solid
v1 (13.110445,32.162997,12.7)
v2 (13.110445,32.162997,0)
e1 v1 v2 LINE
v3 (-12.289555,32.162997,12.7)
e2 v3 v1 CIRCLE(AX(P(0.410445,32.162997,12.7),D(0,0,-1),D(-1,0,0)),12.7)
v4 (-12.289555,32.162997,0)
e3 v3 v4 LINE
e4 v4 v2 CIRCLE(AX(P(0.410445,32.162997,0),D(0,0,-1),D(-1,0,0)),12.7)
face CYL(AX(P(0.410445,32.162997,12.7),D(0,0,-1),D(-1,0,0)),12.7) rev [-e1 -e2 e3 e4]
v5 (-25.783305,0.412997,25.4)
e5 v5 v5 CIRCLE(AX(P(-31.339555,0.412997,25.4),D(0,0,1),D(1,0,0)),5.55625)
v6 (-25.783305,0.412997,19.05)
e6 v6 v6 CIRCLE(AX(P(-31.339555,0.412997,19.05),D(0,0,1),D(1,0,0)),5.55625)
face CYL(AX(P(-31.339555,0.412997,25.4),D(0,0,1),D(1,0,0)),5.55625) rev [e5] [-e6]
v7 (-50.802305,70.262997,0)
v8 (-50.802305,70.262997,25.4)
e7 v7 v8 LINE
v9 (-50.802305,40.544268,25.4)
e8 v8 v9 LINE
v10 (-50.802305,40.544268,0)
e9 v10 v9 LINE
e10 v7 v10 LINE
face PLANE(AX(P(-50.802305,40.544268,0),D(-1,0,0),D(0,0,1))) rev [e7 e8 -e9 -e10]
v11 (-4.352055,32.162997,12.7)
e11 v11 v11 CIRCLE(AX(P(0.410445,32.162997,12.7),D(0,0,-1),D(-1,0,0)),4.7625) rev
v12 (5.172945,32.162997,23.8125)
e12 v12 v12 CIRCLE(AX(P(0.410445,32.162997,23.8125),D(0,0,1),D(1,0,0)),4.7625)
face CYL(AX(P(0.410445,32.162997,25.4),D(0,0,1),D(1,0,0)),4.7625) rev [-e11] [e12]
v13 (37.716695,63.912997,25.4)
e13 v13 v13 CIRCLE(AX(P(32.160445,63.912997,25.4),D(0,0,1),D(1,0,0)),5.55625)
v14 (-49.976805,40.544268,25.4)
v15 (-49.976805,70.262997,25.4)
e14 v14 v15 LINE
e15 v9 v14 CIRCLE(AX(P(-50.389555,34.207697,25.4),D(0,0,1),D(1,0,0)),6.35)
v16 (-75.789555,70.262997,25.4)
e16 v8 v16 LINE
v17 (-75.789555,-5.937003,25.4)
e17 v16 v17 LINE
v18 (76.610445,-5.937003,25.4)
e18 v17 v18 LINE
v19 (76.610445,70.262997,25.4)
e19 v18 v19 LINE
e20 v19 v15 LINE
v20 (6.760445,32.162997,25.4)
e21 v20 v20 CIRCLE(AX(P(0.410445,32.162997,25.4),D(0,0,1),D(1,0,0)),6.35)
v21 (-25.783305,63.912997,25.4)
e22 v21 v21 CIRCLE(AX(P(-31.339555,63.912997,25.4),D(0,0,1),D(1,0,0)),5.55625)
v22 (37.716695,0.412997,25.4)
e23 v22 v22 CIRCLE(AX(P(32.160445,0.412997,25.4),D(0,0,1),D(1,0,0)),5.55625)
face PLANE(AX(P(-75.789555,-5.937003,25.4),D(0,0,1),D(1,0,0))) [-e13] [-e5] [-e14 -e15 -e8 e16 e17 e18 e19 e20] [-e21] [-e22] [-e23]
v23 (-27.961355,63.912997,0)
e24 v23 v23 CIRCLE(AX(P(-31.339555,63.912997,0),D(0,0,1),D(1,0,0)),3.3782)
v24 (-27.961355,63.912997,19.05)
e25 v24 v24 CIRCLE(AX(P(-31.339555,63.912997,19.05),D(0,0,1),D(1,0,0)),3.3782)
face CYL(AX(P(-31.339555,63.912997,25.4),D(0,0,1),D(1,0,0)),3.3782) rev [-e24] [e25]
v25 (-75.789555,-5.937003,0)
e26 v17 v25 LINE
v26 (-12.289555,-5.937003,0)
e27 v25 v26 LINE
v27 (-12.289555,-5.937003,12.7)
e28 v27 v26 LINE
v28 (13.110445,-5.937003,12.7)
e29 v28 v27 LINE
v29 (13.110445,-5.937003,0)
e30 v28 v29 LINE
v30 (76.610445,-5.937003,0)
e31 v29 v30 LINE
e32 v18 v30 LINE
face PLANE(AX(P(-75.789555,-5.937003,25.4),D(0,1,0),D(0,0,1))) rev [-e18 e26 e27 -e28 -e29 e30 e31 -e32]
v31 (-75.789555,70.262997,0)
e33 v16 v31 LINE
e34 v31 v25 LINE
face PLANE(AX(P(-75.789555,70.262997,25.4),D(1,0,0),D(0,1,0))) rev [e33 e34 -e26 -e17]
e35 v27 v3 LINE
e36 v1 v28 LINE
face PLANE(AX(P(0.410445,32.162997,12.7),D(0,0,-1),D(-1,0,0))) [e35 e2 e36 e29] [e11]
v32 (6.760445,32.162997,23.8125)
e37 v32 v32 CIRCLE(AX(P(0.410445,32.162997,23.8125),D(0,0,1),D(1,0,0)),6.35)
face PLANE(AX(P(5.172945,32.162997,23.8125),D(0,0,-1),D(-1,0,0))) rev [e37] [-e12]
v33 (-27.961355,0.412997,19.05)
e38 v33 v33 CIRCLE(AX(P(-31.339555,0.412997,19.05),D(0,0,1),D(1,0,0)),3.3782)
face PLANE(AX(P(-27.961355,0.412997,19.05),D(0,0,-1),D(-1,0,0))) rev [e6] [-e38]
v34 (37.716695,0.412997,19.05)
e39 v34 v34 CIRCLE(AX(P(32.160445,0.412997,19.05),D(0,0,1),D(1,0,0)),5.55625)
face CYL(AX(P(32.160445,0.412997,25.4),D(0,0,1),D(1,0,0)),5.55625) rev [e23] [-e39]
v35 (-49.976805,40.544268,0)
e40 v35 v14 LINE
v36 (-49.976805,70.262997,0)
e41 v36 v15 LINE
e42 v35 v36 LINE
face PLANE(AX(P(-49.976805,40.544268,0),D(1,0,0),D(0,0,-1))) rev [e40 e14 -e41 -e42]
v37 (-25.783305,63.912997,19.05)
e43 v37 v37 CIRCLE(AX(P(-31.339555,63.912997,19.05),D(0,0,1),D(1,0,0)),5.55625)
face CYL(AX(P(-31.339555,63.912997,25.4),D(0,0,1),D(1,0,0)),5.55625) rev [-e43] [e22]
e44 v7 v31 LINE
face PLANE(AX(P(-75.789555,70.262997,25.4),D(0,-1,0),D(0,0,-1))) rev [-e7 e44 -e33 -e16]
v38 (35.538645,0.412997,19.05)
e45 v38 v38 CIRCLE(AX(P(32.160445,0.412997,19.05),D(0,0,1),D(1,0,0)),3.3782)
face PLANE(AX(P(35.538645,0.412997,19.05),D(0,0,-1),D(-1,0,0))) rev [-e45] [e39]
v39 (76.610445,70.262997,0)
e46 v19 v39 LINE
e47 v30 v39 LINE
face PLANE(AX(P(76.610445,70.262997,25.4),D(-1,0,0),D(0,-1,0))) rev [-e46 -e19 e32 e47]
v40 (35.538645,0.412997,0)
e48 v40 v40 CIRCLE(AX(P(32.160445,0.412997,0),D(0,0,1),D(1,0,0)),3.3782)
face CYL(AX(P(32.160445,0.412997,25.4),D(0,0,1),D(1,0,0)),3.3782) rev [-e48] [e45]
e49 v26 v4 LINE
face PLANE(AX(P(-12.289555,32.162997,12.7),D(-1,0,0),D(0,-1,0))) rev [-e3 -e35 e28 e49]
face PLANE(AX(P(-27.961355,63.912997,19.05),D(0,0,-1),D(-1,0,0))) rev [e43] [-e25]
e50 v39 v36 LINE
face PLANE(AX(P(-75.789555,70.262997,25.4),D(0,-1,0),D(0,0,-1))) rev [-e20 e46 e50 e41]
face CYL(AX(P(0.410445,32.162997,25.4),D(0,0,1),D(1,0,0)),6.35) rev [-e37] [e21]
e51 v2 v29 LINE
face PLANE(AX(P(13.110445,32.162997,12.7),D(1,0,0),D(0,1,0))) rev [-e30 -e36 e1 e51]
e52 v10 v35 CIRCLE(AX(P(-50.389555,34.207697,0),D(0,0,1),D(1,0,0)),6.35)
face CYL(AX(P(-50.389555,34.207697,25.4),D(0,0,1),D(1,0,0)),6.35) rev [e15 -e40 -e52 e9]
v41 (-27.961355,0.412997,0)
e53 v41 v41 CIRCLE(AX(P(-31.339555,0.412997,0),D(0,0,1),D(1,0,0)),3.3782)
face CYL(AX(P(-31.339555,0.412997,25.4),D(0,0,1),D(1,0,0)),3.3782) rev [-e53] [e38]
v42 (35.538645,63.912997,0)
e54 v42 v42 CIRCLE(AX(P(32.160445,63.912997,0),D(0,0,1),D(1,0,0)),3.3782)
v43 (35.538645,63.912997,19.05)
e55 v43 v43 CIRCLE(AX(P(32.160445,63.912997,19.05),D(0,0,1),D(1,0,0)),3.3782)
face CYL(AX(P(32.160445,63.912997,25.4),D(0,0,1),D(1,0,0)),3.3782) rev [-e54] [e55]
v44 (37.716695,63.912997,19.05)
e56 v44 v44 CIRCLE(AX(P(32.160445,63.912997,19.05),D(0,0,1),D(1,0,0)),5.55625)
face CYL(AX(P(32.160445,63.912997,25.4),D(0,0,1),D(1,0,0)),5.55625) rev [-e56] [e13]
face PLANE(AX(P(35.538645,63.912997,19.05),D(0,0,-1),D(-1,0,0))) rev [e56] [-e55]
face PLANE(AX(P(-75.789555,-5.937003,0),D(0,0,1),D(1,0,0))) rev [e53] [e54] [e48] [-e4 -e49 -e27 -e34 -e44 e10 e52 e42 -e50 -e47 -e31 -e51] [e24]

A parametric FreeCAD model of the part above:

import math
import FreeCAD as App
import Part
import Sketcher
from FreeCAD import Vector
Q = App.Units.Quantity


def add_polygon(sketch, points):
    """Adds a closed chain of lines whose ends are joined by coincident constraints."""
    first, n = sketch.GeometryCount, len(points)
    for a, b in zip(points, points[1:] + points[:1]):
        sketch.addGeometry(Part.LineSegment(App.Vector(*a, 0), App.Vector(*b, 0)), False)
    for i in range(n):
        sketch.addConstraint(Sketcher.Constraint("Coincident", first + i, 2, first + (i + 1) % n, 1))

doc = App.newDocument("Part")
body = doc.addObject("PartDesign::Body", "Body")

# Sketch on XY plane
sketch1 = body.newObject("Sketcher::SketchObject", "Sketch")
sketch1.AttachmentSupport = (doc.getObject("XY_Plane"), [""])
sketch1.MapMode = "FlatFace"
add_polygon(sketch1, [(-76, 70), (-76, -6), (77, -6), (77, 70)])  # lines 0-3
sketch1.addConstraint(Sketcher.Constraint("Vertical", 0))
sketch1.addConstraint(Sketcher.Constraint("Horizontal", 1))
sketch1.addConstraint(Sketcher.Constraint("Vertical", 2))
sketch1.addConstraint(Sketcher.Constraint("Horizontal", 3))
sketch1.addConstraint(Sketcher.Constraint("DistanceX", 1, 1, 1, 2, Q("6 in")))
sketch1.addConstraint(Sketcher.Constraint("DistanceY", 0, 2, 0, 1, Q("3 in")))
sketch1.addConstraint(Sketcher.Constraint("DistanceX", 0, 2, -1, 1, 75.789555))
sketch1.addConstraint(Sketcher.Constraint("DistanceY", 0, 2, -1, 1, 5.937003))
pad1 = body.newObject("PartDesign::Pad", "Pad")
pad1.Profile = sketch1
pad1.Length = Q("1 in")

# Sketch on XY plane
sketch2 = body.newObject("Sketcher::SketchObject", "Sketch001")
sketch2.AttachmentSupport = (doc.getObject("XY_Plane"), [""])
sketch2.MapMode = "FlatFace"
sketch2.AttachmentOffset = App.Placement(Vector(0, 0, 1 * 25.4), App.Rotation())
sketch2.addGeometry(Part.Circle(Vector(0.4, 32.2, 0), Vector(0, 0, 1), 4.8), False)
sketch2.addConstraint(Sketcher.Constraint("Diameter", 0, Q("0.375 in")))
sketch2.addConstraint(Sketcher.Constraint("DistanceX", -1, 1, 0, 3, 0.410445))
sketch2.addConstraint(Sketcher.Constraint("DistanceY", -1, 1, 0, 3, 32.162997))
doc.recompute()
hole = body.newObject("PartDesign::Hole", "Hole")
hole.Profile = sketch2
hole.ThreadType = "None"
hole.Diameter = Q("0.375 in")
hole.DepthType = "ThroughAll"
hole.HoleCutType = "Counterbore"
hole.HoleCutDiameter = Q("0.5 in")
hole.HoleCutDepth = Q("0.0625 in")

# Sketch on XY plane
sketch3 = body.newObject("Sketcher::SketchObject", "Sketch002")
sketch3.AttachmentSupport = (doc.getObject("XY_Plane"), [""])
sketch3.MapMode = "FlatFace"
sketch3.AttachmentOffset = App.Placement(Vector(0, 0, 1 * 25.4), App.Rotation())
sketch3.addGeometry(Part.Circle(Vector(-50, 34, 0), Vector(0, 0, 1), 6), False)
sketch3.addConstraint(Sketcher.Constraint("Diameter", 0, Q("0.5 in")))
sketch3.addConstraint(Sketcher.Constraint("DistanceX", 0, 3, -1, 1, 50.389555))
sketch3.addConstraint(Sketcher.Constraint("DistanceY", -1, 1, 0, 3, 34.207697))
doc.recompute()
hole2 = body.newObject("PartDesign::Hole", "Hole001")
hole2.Profile = sketch3
hole2.ThreadType = "None"
hole2.Diameter = Q("0.5 in")
hole2.DepthType = "ThroughAll"

# Sketch on XY plane
sketch4 = body.newObject("Sketcher::SketchObject", "Sketch003")
sketch4.AttachmentSupport = (doc.getObject("XY_Plane"), [""])
sketch4.MapMode = "FlatFace"
sketch4.AttachmentOffset = App.Placement(Vector(0, 0, 1 * 25.4), App.Rotation())
sketch4.addGeometry(Part.Circle(Vector(-31.3, 63.9, 0), Vector(0, 0, 1), 3.4), False)
sketch4.addGeometry(Part.Circle(Vector(-31.3, 0.4, 0), Vector(0, 0, 1), 3.4), False)
sketch4.addGeometry(Part.Circle(Vector(32.2, 0.4, 0), Vector(0, 0, 1), 3.4), False)
sketch4.addGeometry(Part.Circle(Vector(32.2, 63.9, 0), Vector(0, 0, 1), 3.4), False)
sketch4.addConstraint(Sketcher.Constraint("Equal", 0, 1))
sketch4.addConstraint(Sketcher.Constraint("Equal", 1, 2))
sketch4.addConstraint(Sketcher.Constraint("Equal", 2, 3))
sketch4.addConstraint(Sketcher.Constraint("Horizontal", 1, 3, 2, 3))
sketch4.addConstraint(Sketcher.Constraint("Horizontal", 0, 3, 3, 3))
sketch4.addConstraint(Sketcher.Constraint("Vertical", 0, 3, 1, 3))
sketch4.addConstraint(Sketcher.Constraint("Vertical", 2, 3, 3, 3))
sketch4.addConstraint(Sketcher.Constraint("Diameter", 0, Q("0.266 in")))
sketch4.addConstraint(Sketcher.Constraint("DistanceY", 1, 3, 0, 3, Q("2.5 in")))
sketch4.addConstraint(Sketcher.Constraint("DistanceX", 1, 3, 2, 3, Q("2.5 in")))
sketch4.addConstraint(Sketcher.Constraint("DistanceX", 0, 3, -1, 1, 31.339555))
sketch4.addConstraint(Sketcher.Constraint("DistanceY", -1, 1, 0, 3, 63.912997))
doc.recompute()
hole3 = body.newObject("PartDesign::Hole", "Hole002")
hole3.Profile = sketch4
hole3.ThreadType = "None"
hole3.Diameter = Q("0.266 in")
hole3.DepthType = "ThroughAll"
hole3.HoleCutType = "Counterbore"
hole3.HoleCutDiameter = Q("0.4375 in")
hole3.HoleCutDepth = Q("0.25 in")

# Sketch on XY plane
sketch5 = body.newObject("Sketcher::SketchObject", "Sketch004")
sketch5.AttachmentSupport = (doc.getObject("XY_Plane"), [""])
sketch5.MapMode = "FlatFace"
sketch5.addGeometry(Part.LineSegment(Vector(13, 32, 0), Vector(13, -6, 0)), False)
sketch5.addGeometry(Part.LineSegment(Vector(13, -6, 0), Vector(-12, -6, 0)), False)
sketch5.addGeometry(Part.LineSegment(Vector(-12, -6, 0), Vector(-12, 32, 0)), False)
sketch5.addGeometry(Part.ArcOfCircle(Part.Circle(Vector(0, 32, 0), Vector(0, 0, 1), 13), math.radians(0), math.radians(180)), False)
sketch5.addConstraint(Sketcher.Constraint("Coincident", 0, 2, 1, 1))
sketch5.addConstraint(Sketcher.Constraint("Coincident", 1, 2, 2, 1))
sketch5.addConstraint(Sketcher.Constraint("Tangent", 2, 2, 3, 2))
sketch5.addConstraint(Sketcher.Constraint("Tangent", 3, 1, 0, 1))
sketch5.addConstraint(Sketcher.Constraint("Vertical", 0))
sketch5.addConstraint(Sketcher.Constraint("Horizontal", 1))
sketch5.addConstraint(Sketcher.Constraint("Vertical", 2))
sketch5.addConstraint(Sketcher.Constraint("Radius", 3, Q("0.5 in")))
sketch5.addConstraint(Sketcher.Constraint("DistanceY", 0, 2, 0, 1, Q("1.5 in")))
sketch5.addConstraint(Sketcher.Constraint("DistanceX", -1, 1, 3, 3, 0.410445))
sketch5.addConstraint(Sketcher.Constraint("DistanceY", -1, 1, 3, 3, 32.162997))
pocket1 = body.newObject("PartDesign::Pocket", "Pocket")
pocket1.Profile = sketch5
pocket1.Length = Q("0.5 in")
pocket1.Reversed = True

# Sketch on XY plane
sketch6 = body.newObject("Sketcher::SketchObject", "Sketch005")
sketch6.AttachmentSupport = (doc.getObject("XY_Plane"), [""])
sketch6.MapMode = "FlatFace"
sketch6.AttachmentOffset = App.Placement(Vector(0, 0, 1 * 25.4), App.Rotation())
add_polygon(sketch6, [(-50.8, 70.3), (-50.8, 40.5), (-50, 40.5), (-50, 70.3)])  # lines 0-3
sketch6.addConstraint(Sketcher.Constraint("Vertical", 0))
sketch6.addConstraint(Sketcher.Constraint("Horizontal", 1))
sketch6.addConstraint(Sketcher.Constraint("Vertical", 2))
sketch6.addConstraint(Sketcher.Constraint("Horizontal", 3))
sketch6.addConstraint(Sketcher.Constraint("DistanceX", 1, 1, 1, 2, Q("0.0325 in")))
sketch6.addConstraint(Sketcher.Constraint("DistanceY", 0, 2, 0, 1, 29.718729))
sketch6.addConstraint(Sketcher.Constraint("DistanceY", -1, 1, 0, 2, 40.544268))
sketch6.addConstraint(Sketcher.Constraint("DistanceX", 0, 2, -1, 1, 50.802305))
pocket2 = body.newObject("PartDesign::Pocket", "Pocket001")
pocket2.Profile = sketch6
pocket2.Type = "ThroughAll"

doc.recompute()
